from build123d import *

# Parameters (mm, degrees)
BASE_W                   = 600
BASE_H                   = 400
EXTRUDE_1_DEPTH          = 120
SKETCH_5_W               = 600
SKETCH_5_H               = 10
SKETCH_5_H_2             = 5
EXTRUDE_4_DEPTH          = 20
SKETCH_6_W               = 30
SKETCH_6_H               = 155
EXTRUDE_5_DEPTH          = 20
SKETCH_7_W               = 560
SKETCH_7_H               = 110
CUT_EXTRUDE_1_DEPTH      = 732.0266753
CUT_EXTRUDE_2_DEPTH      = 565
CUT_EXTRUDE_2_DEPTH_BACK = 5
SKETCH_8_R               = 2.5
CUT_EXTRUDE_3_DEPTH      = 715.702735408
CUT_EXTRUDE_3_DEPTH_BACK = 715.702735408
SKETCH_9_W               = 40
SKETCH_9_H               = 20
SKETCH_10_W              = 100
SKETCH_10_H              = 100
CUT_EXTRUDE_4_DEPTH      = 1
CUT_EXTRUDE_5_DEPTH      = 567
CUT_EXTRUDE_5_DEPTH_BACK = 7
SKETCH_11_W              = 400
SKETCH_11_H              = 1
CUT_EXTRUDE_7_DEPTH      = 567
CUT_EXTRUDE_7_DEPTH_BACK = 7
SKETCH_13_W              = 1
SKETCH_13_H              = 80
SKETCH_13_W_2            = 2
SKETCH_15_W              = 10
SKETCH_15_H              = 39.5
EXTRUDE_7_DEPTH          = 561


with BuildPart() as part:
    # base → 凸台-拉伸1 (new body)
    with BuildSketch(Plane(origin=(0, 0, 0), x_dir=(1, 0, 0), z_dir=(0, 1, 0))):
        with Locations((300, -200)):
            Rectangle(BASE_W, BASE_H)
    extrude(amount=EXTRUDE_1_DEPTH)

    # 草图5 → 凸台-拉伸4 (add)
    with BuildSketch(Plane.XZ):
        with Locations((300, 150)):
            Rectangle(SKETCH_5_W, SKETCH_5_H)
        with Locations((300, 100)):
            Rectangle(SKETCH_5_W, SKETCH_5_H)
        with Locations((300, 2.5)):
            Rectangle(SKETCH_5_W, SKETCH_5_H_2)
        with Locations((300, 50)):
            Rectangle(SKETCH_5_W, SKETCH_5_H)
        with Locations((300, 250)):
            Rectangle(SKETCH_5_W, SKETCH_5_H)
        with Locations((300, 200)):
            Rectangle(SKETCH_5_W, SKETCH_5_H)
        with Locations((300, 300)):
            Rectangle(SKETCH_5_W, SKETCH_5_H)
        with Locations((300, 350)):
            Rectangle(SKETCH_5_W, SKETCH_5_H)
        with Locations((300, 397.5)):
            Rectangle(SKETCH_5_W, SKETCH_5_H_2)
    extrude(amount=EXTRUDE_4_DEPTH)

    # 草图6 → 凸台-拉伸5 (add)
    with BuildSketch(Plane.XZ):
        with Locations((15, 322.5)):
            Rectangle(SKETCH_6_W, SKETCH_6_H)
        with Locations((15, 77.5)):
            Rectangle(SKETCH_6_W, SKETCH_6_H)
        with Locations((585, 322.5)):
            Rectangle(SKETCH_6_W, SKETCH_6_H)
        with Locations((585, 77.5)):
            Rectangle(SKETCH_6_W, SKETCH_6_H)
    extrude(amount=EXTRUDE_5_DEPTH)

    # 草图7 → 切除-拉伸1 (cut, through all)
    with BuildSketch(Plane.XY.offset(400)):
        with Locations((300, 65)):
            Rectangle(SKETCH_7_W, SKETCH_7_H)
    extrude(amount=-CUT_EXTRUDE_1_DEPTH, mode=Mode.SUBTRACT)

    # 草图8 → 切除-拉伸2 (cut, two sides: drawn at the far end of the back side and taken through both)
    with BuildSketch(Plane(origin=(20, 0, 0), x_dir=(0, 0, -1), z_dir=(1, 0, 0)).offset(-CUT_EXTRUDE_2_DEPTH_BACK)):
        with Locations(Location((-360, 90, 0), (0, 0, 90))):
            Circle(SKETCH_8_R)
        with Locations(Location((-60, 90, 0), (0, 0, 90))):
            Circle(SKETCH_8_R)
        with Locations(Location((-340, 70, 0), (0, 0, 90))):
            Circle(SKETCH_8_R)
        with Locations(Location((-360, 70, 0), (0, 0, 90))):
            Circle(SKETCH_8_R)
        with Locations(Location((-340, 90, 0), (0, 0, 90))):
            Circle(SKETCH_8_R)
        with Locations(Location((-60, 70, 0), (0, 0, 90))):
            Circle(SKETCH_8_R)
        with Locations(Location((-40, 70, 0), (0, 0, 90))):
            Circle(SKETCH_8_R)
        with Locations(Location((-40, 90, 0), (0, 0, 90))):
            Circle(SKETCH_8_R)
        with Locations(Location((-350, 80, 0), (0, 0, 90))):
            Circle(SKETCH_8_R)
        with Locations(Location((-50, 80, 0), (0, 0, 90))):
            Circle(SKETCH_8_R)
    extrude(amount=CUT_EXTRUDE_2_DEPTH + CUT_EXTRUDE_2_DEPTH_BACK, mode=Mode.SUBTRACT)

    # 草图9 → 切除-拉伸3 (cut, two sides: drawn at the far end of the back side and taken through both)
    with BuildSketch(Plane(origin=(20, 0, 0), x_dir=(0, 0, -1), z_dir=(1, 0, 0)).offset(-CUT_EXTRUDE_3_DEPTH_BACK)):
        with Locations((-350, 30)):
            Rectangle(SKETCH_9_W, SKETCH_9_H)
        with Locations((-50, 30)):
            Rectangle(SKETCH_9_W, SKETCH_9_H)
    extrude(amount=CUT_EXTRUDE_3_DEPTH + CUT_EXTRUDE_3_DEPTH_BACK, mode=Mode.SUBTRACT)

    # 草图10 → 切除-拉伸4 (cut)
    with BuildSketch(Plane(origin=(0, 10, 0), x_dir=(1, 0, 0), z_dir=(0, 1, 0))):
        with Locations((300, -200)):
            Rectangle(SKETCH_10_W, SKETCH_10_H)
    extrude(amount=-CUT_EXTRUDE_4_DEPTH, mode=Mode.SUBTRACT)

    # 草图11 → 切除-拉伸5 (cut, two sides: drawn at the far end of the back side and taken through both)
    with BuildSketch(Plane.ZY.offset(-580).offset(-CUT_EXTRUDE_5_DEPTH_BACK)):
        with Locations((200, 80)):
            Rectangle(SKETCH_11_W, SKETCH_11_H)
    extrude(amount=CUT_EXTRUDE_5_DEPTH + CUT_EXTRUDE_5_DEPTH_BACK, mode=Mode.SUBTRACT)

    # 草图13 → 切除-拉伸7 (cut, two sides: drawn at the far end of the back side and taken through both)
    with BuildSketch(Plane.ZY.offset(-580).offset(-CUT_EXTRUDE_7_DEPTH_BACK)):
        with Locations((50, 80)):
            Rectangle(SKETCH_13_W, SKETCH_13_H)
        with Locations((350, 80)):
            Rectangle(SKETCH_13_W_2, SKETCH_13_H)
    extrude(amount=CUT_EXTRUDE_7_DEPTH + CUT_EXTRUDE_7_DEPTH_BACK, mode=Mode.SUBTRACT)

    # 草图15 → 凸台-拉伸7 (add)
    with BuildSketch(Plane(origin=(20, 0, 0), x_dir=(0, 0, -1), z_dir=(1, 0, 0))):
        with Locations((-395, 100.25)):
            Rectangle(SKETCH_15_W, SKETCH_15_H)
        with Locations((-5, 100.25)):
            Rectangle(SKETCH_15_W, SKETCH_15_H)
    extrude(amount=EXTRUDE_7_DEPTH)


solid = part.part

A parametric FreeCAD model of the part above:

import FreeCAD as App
import Part
import Sketcher


def add_polygon(sketch, points):
    """Adds a closed chain of lines whose ends are joined by coincident constraints."""
    first, n = sketch.GeometryCount, len(points)
    for a, b in zip(points, points[1:] + points[:1]):
        sketch.addGeometry(Part.LineSegment(App.Vector(*a, 0), App.Vector(*b, 0)), False)
    for i in range(n):
        sketch.addConstraint(Sketcher.Constraint("Coincident", first + i, 2, first + (i + 1) % n, 1))

doc = App.newDocument("Part")
body = doc.addObject("PartDesign::Body", "Body")

sketch1 = body.newObject("Sketcher::SketchObject", "Sketch")
sketch1.AttachmentSupport = (doc.getObject("XZ_Plane"), [""])
sketch1.MapMode = "FlatFace"
add_polygon(sketch1, [(0, 0), (0, 400), (600, 400), (600, 0)])
sketch1.addConstraint([
    Sketcher.Constraint("Vertical", 0),
    Sketcher.Constraint("Horizontal", 1),
    Sketcher.Constraint("Vertical", 2),
    Sketcher.Constraint("Horizontal", 3),
    Sketcher.Constraint("Coincident", 3, 2, -1, 1),
    Sketcher.Constraint("DistanceX", 1, 1, 1, 2, 600.0),
    Sketcher.Constraint("DistanceY", 0, 1, 0, 2, 400.0),
])
pad1 = body.newObject("PartDesign::Pad", "Pad")
pad1.Profile = sketch1
pad1.Length = 120
pad1.Reversed = True

sketch2 = body.newObject("Sketcher::SketchObject", "Sketch001")
sketch2.AttachmentSupport = (doc.getObject("XZ_Plane"), [""])
sketch2.MapMode = "FlatFace"
add_polygon(sketch2, [(0, 155), (0, 145), (600, 145), (600, 155)])
add_polygon(sketch2, [(0, 105), (0, 95), (600, 95), (600, 105)])
add_polygon(sketch2, [(0, 5), (0, 0), (600, 0), (600, 5)])
add_polygon(sketch2, [(0, 55), (0, 45), (600, 45), (600, 55)])
add_polygon(sketch2, [(0, 255), (0, 245), (600, 245), (600, 255)])
add_polygon(sketch2, [(0, 205), (0, 195), (600, 195), (600, 205)])
add_polygon(sketch2, [(0, 305), (0, 295), (600, 295), (600, 305)])
add_polygon(sketch2, [(0, 355), (0, 345), (600, 345), (600, 355)])
add_polygon(sketch2, [(0, 400), (0, 395), (600, 395), (600, 400)])
sketch2.addConstraint([
    Sketcher.Constraint("Vertical", 0),
    Sketcher.Constraint("Horizontal", 1),
    Sketcher.Constraint("Vertical", 2),
    Sketcher.Constraint("Horizontal", 3),
    Sketcher.Constraint("Vertical", 4),
    Sketcher.Constraint("Horizontal", 5),
    Sketcher.Constraint("Vertical", 6),
    Sketcher.Constraint("Horizontal", 7),
    Sketcher.Constraint("Vertical", 8),
    Sketcher.Constraint("Horizontal", 9),
    Sketcher.Constraint("Vertical", 10),
    Sketcher.Constraint("Horizontal", 11),
    Sketcher.Constraint("Vertical", 12),
    Sketcher.Constraint("Horizontal", 13),
    Sketcher.Constraint("Vertical", 14),
    Sketcher.Constraint("Horizontal", 15),
    Sketcher.Constraint("Vertical", 16),
    Sketcher.Constraint("Horizontal", 17),
    Sketcher.Constraint("Vertical", 18),
    Sketcher.Constraint("Horizontal", 19),
    Sketcher.Constraint("Vertical", 20),
    Sketcher.Constraint("Horizontal", 21),
    Sketcher.Constraint("Vertical", 22),
    Sketcher.Constraint("Horizontal", 23),
    Sketcher.Constraint("Vertical", 24),
    Sketcher.Constraint("Horizontal", 25),
    Sketcher.Constraint("Vertical", 26),
    Sketcher.Constraint("Horizontal", 27),
    Sketcher.Constraint("Vertical", 28),
    Sketcher.Constraint("Horizontal", 29),
    Sketcher.Constraint("Vertical", 30),
    Sketcher.Constraint("Horizontal", 31),
    Sketcher.Constraint("Vertical", 32),
    Sketcher.Constraint("Horizontal", 33),
    Sketcher.Constraint("Vertical", 34),
    Sketcher.Constraint("Horizontal", 35),
    Sketcher.Constraint("Coincident", 8, 2, -1, 1),
    Sketcher.Constraint("PointOnObject", 0, 2, -2),
    Sketcher.Constraint("PointOnObject", 4, 2, -2),
    Sketcher.Constraint("PointOnObject", 12, 2, -2),
    Sketcher.Constraint("PointOnObject", 16, 2, -2),
    Sketcher.Constraint("PointOnObject", 20, 2, -2),
    Sketcher.Constraint("PointOnObject", 24, 2, -2),
    Sketcher.Constraint("PointOnObject", 28, 2, -2),
    Sketcher.Constraint("PointOnObject", 32, 2, -2),
    Sketcher.Constraint("Vertical", 2, 2, 5, 2),
    Sketcher.Constraint("Vertical", 6, 2, 9, 2),
    Sketcher.Constraint("Vertical", 10, 2, 13, 2),
    Sketcher.Constraint("Vertical", 14, 2, 17, 2),
    Sketcher.Constraint("Vertical", 18, 2, 21, 2),
    Sketcher.Constraint("Vertical", 22, 2, 25, 2),
    Sketcher.Constraint("Vertical", 26, 2, 29, 2),
    Sketcher.Constraint("Vertical", 30, 2, 33, 2),
    Sketcher.Constraint("Equal", 2, 4),
    Sketcher.Constraint("Equal", 6, 12),
    Sketcher.Constraint("Equal", 14, 16),
    Sketcher.Constraint("Equal", 18, 20),
    Sketcher.Constraint("Equal", 22, 24),
    Sketcher.Constraint("Equal", 26, 28),
    Sketcher.Constraint("Equal", 10, 32),
    Sketcher.Constraint("DistanceX", 1, 1, 1, 2, 600.0),
    Sketcher.Constraint("DistanceY", 0, 2, 0, 1, 10.0),
    Sketcher.Constraint("DistanceY", 8, 2, 8, 1, 5.0),
    Sketcher.Constraint("DistanceY", -1, 1, 0, 2, 145.0),
    Sketcher.Constraint("DistanceY", -1, 1, 4, 2, 95.0),
    Sketcher.Constraint("DistanceY", -1, 1, 12, 2, 45.0),
    Sketcher.Constraint("DistanceY", -1, 1, 16, 2, 245.0),
    Sketcher.Constraint("DistanceY", -1, 1, 20, 2, 195.0),
    Sketcher.Constraint("DistanceY", -1, 1, 24, 2, 295.0),
    Sketcher.Constraint("DistanceY", -1, 1, 28, 2, 345.0),
    Sketcher.Constraint("DistanceY", -1, 1, 32, 2, 395.0),
])
pad2 = body.newObject("PartDesign::Pad", "Pad001")
pad2.Profile = sketch2
pad2.Length = 20

sketch3 = body.newObject("Sketcher::SketchObject", "Sketch002")
sketch3.AttachmentSupport = (doc.getObject("XZ_Plane"), [""])
sketch3.MapMode = "FlatFace"
add_polygon(sketch3, [(0, 400), (0, 245), (30, 245), (30, 400)])
add_polygon(sketch3, [(0, 155), (0, 0), (30, 0), (30, 155)])
add_polygon(sketch3, [(570, 400), (570, 245), (600, 245), (600, 400)])
add_polygon(sketch3, [(570, 155), (570, 0), (600, 0), (600, 155)])
sketch3.addConstraint([
    Sketcher.Constraint("Vertical", 0),
    Sketcher.Constraint("Horizontal", 1),
    Sketcher.Constraint("Vertical", 2),
    Sketcher.Constraint("Horizontal", 3),
    Sketcher.Constraint("Vertical", 4),
    Sketcher.Constraint("Horizontal", 5),
    Sketcher.Constraint("Vertical", 6),
    Sketcher.Constraint("Horizontal", 7),
    Sketcher.Constraint("Vertical", 8),
    Sketcher.Constraint("Horizontal", 9),
    Sketcher.Constraint("Vertical", 10),
    Sketcher.Constraint("Horizontal", 11),
    Sketcher.Constraint("Vertical", 12),
    Sketcher.Constraint("Horizontal", 13),
    Sketcher.Constraint("Vertical", 14),
    Sketcher.Constraint("Horizontal", 15),
    Sketcher.Constraint("Coincident", 4, 2, -1, 1),
    Sketcher.Constraint("PointOnObject", 0, 2, -2),
    Sketcher.Constraint("PointOnObject", 12, 2, -1),
    Sketcher.Constraint("Horizontal", 1, 2, 8, 2),
    Sketcher.Constraint("Horizontal", 3, 2, 10, 2),
    Sketcher.Constraint("Horizontal", 7, 2, 14, 2),
    Sketcher.Constraint("Vertical", 2, 2, 5, 2),
    Sketcher.Constraint("Vertical", 11, 2, 12, 2),
    Sketcher.Constraint("Vertical", 10, 2, 13, 2),
    Sketcher.Constraint("Equal", 7, 9),
    Sketcher.Constraint("Equal", 2, 4),
    Sketcher.Constraint("DistanceX", 1, 1, 1, 2, 30.0),
    Sketcher.Constraint("DistanceY", 0, 2, 0, 1, 155.0),
    Sketcher.Constraint("DistanceY", -1, 1, 0, 2, 245.0),
    Sketcher.Constraint("DistanceX", -1, 1, 8, 2, 570.0),
])
pad3 = body.newObject("PartDesign::Pad", "Pad002")
pad3.Profile = sketch3
pad3.Length = 20

sketch4 = body.newObject("Sketcher::SketchObject", "Sketch003")
sketch4.AttachmentSupport = (doc.getObject("XY_Plane"), [""])
sketch4.MapMode = "FlatFace"
sketch4.AttachmentOffset = App.Placement(App.Vector(0, 0, 400), App.Rotation())
add_polygon(sketch4, [(20, 120), (20, 10), (580, 10), (580, 120)])
sketch4.addConstraint([
    Sketcher.Constraint("Vertical", 0),
    Sketcher.Constraint("Horizontal", 1),
    Sketcher.Constraint("Vertical", 2),
    Sketcher.Constraint("Horizontal", 3),
    Sketcher.Constraint("DistanceX", 1, 1, 1, 2, 560.0),
    Sketcher.Constraint("DistanceY", 0, 2, 0, 1, 110.0),
    Sketcher.Constraint("DistanceX", -1, 1, 0, 2, 20.0),
    Sketcher.Constraint("DistanceY", -1, 1, 0, 2, 10.0),
])
pocket1 = body.newObject("PartDesign::Pocket", "Pocket")
pocket1.Profile = sketch4
pocket1.Type = "ThroughAll"

sketch5 = body.newObject("Sketcher::SketchObject", "Sketch004")
sketch5.AttachmentSupport = (doc.getObject("YZ_Plane"), [""])
sketch5.MapMode = "FlatFace"
sketch5.AttachmentOffset = App.Placement(App.Vector(0, 0, 20), App.Rotation())
sketch5.addGeometry([
    Part.Circle(App.Vector(90, 360, 0), App.Vector(0, 0, 1), 2.5),
    Part.Circle(App.Vector(90, 60, 0), App.Vector(0, 0, 1), 2.5),
    Part.Circle(App.Vector(70, 340, 0), App.Vector(0, 0, 1), 2.5),
    Part.Circle(App.Vector(70, 360, 0), App.Vector(0, 0, 1), 2.5),
    Part.Circle(App.Vector(90, 340, 0), App.Vector(0, 0, 1), 2.5),
    Part.Circle(App.Vector(70, 60, 0), App.Vector(0, 0, 1), 2.5),
    Part.Circle(App.Vector(70, 40, 0), App.Vector(0, 0, 1), 2.5),
    Part.Circle(App.Vector(90, 40, 0), App.Vector(0, 0, 1), 2.5),
    Part.Circle(App.Vector(80, 350, 0), App.Vector(0, 0, 1), 2.5),
    Part.Circle(App.Vector(80, 50, 0), App.Vector(0, 0, 1), 2.5),
], False)
sketch5.addConstraint([
    Sketcher.Constraint("Equal", 0, 1),
    Sketcher.Constraint("Equal", 1, 2),
    Sketcher.Constraint("Equal", 2, 3),
    Sketcher.Constraint("Equal", 3, 4),
    Sketcher.Constraint("Equal", 4, 5),
    Sketcher.Constraint("Equal", 5, 6),
    Sketcher.Constraint("Equal", 6, 7),
    Sketcher.Constraint("Equal", 7, 8),
    Sketcher.Constraint("Equal", 8, 9),
    Sketcher.Constraint("Horizontal", 0, 3, 3, 3),
    Sketcher.Constraint("Horizontal", 2, 3, 4, 3),
    Sketcher.Constraint("Horizontal", 1, 3, 5, 3),
    Sketcher.Constraint("Horizontal", 6, 3, 7, 3),
    Sketcher.Constraint("Vertical", 0, 3, 1, 3),
    Sketcher.Constraint("Vertical", 2, 3, 3, 3),
    Sketcher.Constraint("Vertical", 1, 3, 4, 3),
    Sketcher.Constraint("Vertical", 3, 3, 5, 3),
    Sketcher.Constraint("Vertical", 5, 3, 6, 3),
    Sketcher.Constraint("Vertical", 4, 3, 7, 3),
    Sketcher.Constraint("Vertical", 8, 3, 9, 3),
    Sketcher.Constraint("Diameter", 0, 5.0),
    Sketcher.Constraint("DistanceX", -1, 1, 0, 3, 90.0),
    Sketcher.Constraint("DistanceY", -1, 1, 0, 3, 360.0),
    Sketcher.Constraint("DistanceY", -1, 1, 1, 3, 60.0),
    Sketcher.Constraint("DistanceX", -1, 1, 2, 3, 70.0),
    Sketcher.Constraint("DistanceY", -1, 1, 2, 3, 340.0),
    Sketcher.Constraint("DistanceY", -1, 1, 6, 3, 40.0),
    Sketcher.Constraint("DistanceX", -1, 1, 8, 3, 80.0),
    Sketcher.Constraint("DistanceY", -1, 1, 8, 3, 350.0),
    Sketcher.Constraint("DistanceY", -1, 1, 9, 3, 50.0),
])
pocket2 = body.newObject("PartDesign::Pocket", "Pocket001")
pocket2.Profile = sketch5
pocket2.Type = "TwoLengths"
pocket2.Length = 565
pocket2.Length2 = 5
pocket2.Reversed = True

sketch6 = body.newObject("Sketcher::SketchObject", "Sketch005")
sketch6.AttachmentSupport = (doc.getObject("YZ_Plane"), [""])
sketch6.MapMode = "FlatFace"
sketch6.AttachmentOffset = App.Placement(App.Vector(0, 0, 20), App.Rotation())
add_polygon(sketch6, [(40, 370), (20, 370), (20, 330), (40, 330)])
add_polygon(sketch6, [(40, 70), (20, 70), (20, 30), (40, 30)])
sketch6.addConstraint([
    Sketcher.Constraint("Horizontal", 0),
    Sketcher.Constraint("Vertical", 1),
    Sketcher.Constraint("Horizontal", 2),
    Sketcher.Constraint("Vertical", 3),
    Sketcher.Constraint("Horizontal", 4),
    Sketcher.Constraint("Vertical", 5),
    Sketcher.Constraint("Horizontal", 6),
    Sketcher.Constraint("Vertical", 7),
    Sketcher.Constraint("Vertical", 1, 2, 4, 2),
    Sketcher.Constraint("Vertical", 3, 2, 6, 2),
    Sketcher.Constraint("Equal", 3, 5),
    Sketcher.Constraint("DistanceX", 0, 2, 0, 1, 20.0),
    Sketcher.Constraint("DistanceY", 1, 2, 1, 1, 40.0),
    Sketcher.Constraint("DistanceX", -1, 1, 0, 2, 20.0),
    Sketcher.Constraint("DistanceY", -1, 1, 0, 2, 370.0),
    Sketcher.Constraint("DistanceY", -1, 1, 4, 2, 70.0),
])
pocket3 = body.newObject("PartDesign::Pocket", "Pocket002")
pocket3.Profile = sketch6
pocket3.Type = "ThroughAll"
pocket3.Midplane = True

sketch7 = body.newObject("Sketcher::SketchObject", "Sketch006")
sketch7.AttachmentSupport = (doc.getObject("XZ_Plane"), [""])
sketch7.MapMode = "FlatFace"
sketch7.AttachmentOffset = App.Placement(App.Vector(0, 0, -10), App.Rotation())
add_polygon(sketch7, [(250, 150), (250, 250), (350, 250), (350, 150)])
sketch7.addConstraint([
    Sketcher.Constraint("Vertical", 0),
    Sketcher.Constraint("Horizontal", 1),
    Sketcher.Constraint("Vertical", 2),
    Sketcher.Constraint("Horizontal", 3),
    Sketcher.Constraint("Equal", 3, 0),
    Sketcher.Constraint("DistanceX", 1, 1, 1, 2, 100.0),
    Sketcher.Constraint("DistanceX", -1, 1, 0, 2, 250.0),
    Sketcher.Constraint("DistanceY", -1, 1, 0, 2, 250.0),
])
pocket4 = body.newObject("PartDesign::Pocket", "Pocket003")
pocket4.Profile = sketch7
pocket4.Length = 1
pocket4.Reversed = True

sketch8 = body.newObject("Sketcher::SketchObject", "Sketch007")
sketch8.AttachmentSupport = (doc.getObject("YZ_Plane"), [""])
sketch8.MapMode = "FlatFace"
sketch8.AttachmentOffset = App.Placement(App.Vector(0, 0, 580), App.Rotation())
add_polygon(sketch8, [(80.5, 0), (79.5, 0), (79.5, 400), (80.5, 400)])
sketch8.addConstraint([
    Sketcher.Constraint("Horizontal", 0),
    Sketcher.Constraint("Vertical", 1),
    Sketcher.Constraint("Horizontal", 2),
    Sketcher.Constraint("Vertical", 3),
    Sketcher.Constraint("PointOnObject", 0, 2, -1),
    Sketcher.Constraint("DistanceX", 0, 2, 0, 1, 1.0),
    Sketcher.Constraint("DistanceY", 1, 1, 1, 2, 400.0),
    Sketcher.Constraint("DistanceX", -1, 1, 0, 2, 79.5),
])
pocket5 = body.newObject("PartDesign::Pocket", "Pocket004")
pocket5.Profile = sketch8
pocket5.Type = "TwoLengths"
pocket5.Length = 567
pocket5.Length2 = 7

sketch9 = body.newObject("Sketcher::SketchObject", "Sketch008")
sketch9.AttachmentSupport = (doc.getObject("YZ_Plane"), [""])
sketch9.MapMode = "FlatFace"
sketch9.AttachmentOffset = App.Placement(App.Vector(0, 0, 580), App.Rotation())
add_polygon(sketch9, [(120, 49.5), (40, 49.5), (40, 50.5), (120, 50.5)])
add_polygon(sketch9, [(120, 349), (40, 349), (40, 351), (120, 351)])
sketch9.addConstraint([
    Sketcher.Constraint("Horizontal", 0),
    Sketcher.Constraint("Vertical", 1),
    Sketcher.Constraint("Horizontal", 2),
    Sketcher.Constraint("Vertical", 3),
    Sketcher.Constraint("Horizontal", 4),
    Sketcher.Constraint("Vertical", 5),
    Sketcher.Constraint("Horizontal", 6),
    Sketcher.Constraint("Vertical", 7),
    Sketcher.Constraint("Vertical", 1, 2, 4, 2),
    Sketcher.Constraint("Vertical", 3, 2, 6, 2),
    Sketcher.Constraint("DistanceX", 0, 2, 0, 1, 80.0),
    Sketcher.Constraint("DistanceY", 1, 1, 1, 2, 1.0),
    Sketcher.Constraint("DistanceY", 5, 1, 5, 2, 2.0),
    Sketcher.Constraint("DistanceX", -1, 1, 0, 2, 40.0),
    Sketcher.Constraint("DistanceY", -1, 1, 4, 2, 349.0),
    Sketcher.Constraint("DistanceY", -1, 1, 0, 2, 49.5),
])
pocket6 = body.newObject("PartDesign::Pocket", "Pocket005")
pocket6.Profile = sketch9
pocket6.Type = "TwoLengths"
pocket6.Length = 567
pocket6.Length2 = 7

sketch10 = body.newObject("Sketcher::SketchObject", "Sketch009")
sketch10.AttachmentSupport = (doc.getObject("YZ_Plane"), [""])
sketch10.MapMode = "FlatFace"
sketch10.AttachmentOffset = App.Placement(App.Vector(0, 0, 20), App.Rotation())
add_polygon(sketch10, [(120, 400), (80.5, 400), (80.5, 390), (120, 390)])
add_polygon(sketch10, [(120, 10), (80.5, 10), (80.5, 0), (120, 0)])
sketch10.addConstraint([
    Sketcher.Constraint("Horizontal", 0),
    Sketcher.Constraint("Vertical", 1),
    Sketcher.Constraint("Horizontal", 2),
    Sketcher.Constraint("Vertical", 3),
    Sketcher.Constraint("Horizontal", 4),
    Sketcher.Constraint("Vertical", 5),
    Sketcher.Constraint("Horizontal", 6),
    Sketcher.Constraint("Vertical", 7),
    Sketcher.Constraint("PointOnObject", 5, 2, -1),
    Sketcher.Constraint("Vertical", 1, 2, 4, 2),
    Sketcher.Constraint("Vertical", 3, 2, 6, 2),
    Sketcher.Constraint("Equal", 3, 5),
    Sketcher.Constraint("DistanceY", 1, 2, 1, 1, 10.0),
    Sketcher.Constraint("DistanceX", 0, 2, 0, 1, 39.5),
    Sketcher.Constraint("DistanceY", -1, 1, 0, 2, 400.0),
    Sketcher.Constraint("DistanceX", -1, 1, 2, 2, 120.0),
])
pad4 = body.newObject("PartDesign::Pad", "Pad003")
pad4.Profile = sketch10
pad4.Length = 561

doc.recompute()
